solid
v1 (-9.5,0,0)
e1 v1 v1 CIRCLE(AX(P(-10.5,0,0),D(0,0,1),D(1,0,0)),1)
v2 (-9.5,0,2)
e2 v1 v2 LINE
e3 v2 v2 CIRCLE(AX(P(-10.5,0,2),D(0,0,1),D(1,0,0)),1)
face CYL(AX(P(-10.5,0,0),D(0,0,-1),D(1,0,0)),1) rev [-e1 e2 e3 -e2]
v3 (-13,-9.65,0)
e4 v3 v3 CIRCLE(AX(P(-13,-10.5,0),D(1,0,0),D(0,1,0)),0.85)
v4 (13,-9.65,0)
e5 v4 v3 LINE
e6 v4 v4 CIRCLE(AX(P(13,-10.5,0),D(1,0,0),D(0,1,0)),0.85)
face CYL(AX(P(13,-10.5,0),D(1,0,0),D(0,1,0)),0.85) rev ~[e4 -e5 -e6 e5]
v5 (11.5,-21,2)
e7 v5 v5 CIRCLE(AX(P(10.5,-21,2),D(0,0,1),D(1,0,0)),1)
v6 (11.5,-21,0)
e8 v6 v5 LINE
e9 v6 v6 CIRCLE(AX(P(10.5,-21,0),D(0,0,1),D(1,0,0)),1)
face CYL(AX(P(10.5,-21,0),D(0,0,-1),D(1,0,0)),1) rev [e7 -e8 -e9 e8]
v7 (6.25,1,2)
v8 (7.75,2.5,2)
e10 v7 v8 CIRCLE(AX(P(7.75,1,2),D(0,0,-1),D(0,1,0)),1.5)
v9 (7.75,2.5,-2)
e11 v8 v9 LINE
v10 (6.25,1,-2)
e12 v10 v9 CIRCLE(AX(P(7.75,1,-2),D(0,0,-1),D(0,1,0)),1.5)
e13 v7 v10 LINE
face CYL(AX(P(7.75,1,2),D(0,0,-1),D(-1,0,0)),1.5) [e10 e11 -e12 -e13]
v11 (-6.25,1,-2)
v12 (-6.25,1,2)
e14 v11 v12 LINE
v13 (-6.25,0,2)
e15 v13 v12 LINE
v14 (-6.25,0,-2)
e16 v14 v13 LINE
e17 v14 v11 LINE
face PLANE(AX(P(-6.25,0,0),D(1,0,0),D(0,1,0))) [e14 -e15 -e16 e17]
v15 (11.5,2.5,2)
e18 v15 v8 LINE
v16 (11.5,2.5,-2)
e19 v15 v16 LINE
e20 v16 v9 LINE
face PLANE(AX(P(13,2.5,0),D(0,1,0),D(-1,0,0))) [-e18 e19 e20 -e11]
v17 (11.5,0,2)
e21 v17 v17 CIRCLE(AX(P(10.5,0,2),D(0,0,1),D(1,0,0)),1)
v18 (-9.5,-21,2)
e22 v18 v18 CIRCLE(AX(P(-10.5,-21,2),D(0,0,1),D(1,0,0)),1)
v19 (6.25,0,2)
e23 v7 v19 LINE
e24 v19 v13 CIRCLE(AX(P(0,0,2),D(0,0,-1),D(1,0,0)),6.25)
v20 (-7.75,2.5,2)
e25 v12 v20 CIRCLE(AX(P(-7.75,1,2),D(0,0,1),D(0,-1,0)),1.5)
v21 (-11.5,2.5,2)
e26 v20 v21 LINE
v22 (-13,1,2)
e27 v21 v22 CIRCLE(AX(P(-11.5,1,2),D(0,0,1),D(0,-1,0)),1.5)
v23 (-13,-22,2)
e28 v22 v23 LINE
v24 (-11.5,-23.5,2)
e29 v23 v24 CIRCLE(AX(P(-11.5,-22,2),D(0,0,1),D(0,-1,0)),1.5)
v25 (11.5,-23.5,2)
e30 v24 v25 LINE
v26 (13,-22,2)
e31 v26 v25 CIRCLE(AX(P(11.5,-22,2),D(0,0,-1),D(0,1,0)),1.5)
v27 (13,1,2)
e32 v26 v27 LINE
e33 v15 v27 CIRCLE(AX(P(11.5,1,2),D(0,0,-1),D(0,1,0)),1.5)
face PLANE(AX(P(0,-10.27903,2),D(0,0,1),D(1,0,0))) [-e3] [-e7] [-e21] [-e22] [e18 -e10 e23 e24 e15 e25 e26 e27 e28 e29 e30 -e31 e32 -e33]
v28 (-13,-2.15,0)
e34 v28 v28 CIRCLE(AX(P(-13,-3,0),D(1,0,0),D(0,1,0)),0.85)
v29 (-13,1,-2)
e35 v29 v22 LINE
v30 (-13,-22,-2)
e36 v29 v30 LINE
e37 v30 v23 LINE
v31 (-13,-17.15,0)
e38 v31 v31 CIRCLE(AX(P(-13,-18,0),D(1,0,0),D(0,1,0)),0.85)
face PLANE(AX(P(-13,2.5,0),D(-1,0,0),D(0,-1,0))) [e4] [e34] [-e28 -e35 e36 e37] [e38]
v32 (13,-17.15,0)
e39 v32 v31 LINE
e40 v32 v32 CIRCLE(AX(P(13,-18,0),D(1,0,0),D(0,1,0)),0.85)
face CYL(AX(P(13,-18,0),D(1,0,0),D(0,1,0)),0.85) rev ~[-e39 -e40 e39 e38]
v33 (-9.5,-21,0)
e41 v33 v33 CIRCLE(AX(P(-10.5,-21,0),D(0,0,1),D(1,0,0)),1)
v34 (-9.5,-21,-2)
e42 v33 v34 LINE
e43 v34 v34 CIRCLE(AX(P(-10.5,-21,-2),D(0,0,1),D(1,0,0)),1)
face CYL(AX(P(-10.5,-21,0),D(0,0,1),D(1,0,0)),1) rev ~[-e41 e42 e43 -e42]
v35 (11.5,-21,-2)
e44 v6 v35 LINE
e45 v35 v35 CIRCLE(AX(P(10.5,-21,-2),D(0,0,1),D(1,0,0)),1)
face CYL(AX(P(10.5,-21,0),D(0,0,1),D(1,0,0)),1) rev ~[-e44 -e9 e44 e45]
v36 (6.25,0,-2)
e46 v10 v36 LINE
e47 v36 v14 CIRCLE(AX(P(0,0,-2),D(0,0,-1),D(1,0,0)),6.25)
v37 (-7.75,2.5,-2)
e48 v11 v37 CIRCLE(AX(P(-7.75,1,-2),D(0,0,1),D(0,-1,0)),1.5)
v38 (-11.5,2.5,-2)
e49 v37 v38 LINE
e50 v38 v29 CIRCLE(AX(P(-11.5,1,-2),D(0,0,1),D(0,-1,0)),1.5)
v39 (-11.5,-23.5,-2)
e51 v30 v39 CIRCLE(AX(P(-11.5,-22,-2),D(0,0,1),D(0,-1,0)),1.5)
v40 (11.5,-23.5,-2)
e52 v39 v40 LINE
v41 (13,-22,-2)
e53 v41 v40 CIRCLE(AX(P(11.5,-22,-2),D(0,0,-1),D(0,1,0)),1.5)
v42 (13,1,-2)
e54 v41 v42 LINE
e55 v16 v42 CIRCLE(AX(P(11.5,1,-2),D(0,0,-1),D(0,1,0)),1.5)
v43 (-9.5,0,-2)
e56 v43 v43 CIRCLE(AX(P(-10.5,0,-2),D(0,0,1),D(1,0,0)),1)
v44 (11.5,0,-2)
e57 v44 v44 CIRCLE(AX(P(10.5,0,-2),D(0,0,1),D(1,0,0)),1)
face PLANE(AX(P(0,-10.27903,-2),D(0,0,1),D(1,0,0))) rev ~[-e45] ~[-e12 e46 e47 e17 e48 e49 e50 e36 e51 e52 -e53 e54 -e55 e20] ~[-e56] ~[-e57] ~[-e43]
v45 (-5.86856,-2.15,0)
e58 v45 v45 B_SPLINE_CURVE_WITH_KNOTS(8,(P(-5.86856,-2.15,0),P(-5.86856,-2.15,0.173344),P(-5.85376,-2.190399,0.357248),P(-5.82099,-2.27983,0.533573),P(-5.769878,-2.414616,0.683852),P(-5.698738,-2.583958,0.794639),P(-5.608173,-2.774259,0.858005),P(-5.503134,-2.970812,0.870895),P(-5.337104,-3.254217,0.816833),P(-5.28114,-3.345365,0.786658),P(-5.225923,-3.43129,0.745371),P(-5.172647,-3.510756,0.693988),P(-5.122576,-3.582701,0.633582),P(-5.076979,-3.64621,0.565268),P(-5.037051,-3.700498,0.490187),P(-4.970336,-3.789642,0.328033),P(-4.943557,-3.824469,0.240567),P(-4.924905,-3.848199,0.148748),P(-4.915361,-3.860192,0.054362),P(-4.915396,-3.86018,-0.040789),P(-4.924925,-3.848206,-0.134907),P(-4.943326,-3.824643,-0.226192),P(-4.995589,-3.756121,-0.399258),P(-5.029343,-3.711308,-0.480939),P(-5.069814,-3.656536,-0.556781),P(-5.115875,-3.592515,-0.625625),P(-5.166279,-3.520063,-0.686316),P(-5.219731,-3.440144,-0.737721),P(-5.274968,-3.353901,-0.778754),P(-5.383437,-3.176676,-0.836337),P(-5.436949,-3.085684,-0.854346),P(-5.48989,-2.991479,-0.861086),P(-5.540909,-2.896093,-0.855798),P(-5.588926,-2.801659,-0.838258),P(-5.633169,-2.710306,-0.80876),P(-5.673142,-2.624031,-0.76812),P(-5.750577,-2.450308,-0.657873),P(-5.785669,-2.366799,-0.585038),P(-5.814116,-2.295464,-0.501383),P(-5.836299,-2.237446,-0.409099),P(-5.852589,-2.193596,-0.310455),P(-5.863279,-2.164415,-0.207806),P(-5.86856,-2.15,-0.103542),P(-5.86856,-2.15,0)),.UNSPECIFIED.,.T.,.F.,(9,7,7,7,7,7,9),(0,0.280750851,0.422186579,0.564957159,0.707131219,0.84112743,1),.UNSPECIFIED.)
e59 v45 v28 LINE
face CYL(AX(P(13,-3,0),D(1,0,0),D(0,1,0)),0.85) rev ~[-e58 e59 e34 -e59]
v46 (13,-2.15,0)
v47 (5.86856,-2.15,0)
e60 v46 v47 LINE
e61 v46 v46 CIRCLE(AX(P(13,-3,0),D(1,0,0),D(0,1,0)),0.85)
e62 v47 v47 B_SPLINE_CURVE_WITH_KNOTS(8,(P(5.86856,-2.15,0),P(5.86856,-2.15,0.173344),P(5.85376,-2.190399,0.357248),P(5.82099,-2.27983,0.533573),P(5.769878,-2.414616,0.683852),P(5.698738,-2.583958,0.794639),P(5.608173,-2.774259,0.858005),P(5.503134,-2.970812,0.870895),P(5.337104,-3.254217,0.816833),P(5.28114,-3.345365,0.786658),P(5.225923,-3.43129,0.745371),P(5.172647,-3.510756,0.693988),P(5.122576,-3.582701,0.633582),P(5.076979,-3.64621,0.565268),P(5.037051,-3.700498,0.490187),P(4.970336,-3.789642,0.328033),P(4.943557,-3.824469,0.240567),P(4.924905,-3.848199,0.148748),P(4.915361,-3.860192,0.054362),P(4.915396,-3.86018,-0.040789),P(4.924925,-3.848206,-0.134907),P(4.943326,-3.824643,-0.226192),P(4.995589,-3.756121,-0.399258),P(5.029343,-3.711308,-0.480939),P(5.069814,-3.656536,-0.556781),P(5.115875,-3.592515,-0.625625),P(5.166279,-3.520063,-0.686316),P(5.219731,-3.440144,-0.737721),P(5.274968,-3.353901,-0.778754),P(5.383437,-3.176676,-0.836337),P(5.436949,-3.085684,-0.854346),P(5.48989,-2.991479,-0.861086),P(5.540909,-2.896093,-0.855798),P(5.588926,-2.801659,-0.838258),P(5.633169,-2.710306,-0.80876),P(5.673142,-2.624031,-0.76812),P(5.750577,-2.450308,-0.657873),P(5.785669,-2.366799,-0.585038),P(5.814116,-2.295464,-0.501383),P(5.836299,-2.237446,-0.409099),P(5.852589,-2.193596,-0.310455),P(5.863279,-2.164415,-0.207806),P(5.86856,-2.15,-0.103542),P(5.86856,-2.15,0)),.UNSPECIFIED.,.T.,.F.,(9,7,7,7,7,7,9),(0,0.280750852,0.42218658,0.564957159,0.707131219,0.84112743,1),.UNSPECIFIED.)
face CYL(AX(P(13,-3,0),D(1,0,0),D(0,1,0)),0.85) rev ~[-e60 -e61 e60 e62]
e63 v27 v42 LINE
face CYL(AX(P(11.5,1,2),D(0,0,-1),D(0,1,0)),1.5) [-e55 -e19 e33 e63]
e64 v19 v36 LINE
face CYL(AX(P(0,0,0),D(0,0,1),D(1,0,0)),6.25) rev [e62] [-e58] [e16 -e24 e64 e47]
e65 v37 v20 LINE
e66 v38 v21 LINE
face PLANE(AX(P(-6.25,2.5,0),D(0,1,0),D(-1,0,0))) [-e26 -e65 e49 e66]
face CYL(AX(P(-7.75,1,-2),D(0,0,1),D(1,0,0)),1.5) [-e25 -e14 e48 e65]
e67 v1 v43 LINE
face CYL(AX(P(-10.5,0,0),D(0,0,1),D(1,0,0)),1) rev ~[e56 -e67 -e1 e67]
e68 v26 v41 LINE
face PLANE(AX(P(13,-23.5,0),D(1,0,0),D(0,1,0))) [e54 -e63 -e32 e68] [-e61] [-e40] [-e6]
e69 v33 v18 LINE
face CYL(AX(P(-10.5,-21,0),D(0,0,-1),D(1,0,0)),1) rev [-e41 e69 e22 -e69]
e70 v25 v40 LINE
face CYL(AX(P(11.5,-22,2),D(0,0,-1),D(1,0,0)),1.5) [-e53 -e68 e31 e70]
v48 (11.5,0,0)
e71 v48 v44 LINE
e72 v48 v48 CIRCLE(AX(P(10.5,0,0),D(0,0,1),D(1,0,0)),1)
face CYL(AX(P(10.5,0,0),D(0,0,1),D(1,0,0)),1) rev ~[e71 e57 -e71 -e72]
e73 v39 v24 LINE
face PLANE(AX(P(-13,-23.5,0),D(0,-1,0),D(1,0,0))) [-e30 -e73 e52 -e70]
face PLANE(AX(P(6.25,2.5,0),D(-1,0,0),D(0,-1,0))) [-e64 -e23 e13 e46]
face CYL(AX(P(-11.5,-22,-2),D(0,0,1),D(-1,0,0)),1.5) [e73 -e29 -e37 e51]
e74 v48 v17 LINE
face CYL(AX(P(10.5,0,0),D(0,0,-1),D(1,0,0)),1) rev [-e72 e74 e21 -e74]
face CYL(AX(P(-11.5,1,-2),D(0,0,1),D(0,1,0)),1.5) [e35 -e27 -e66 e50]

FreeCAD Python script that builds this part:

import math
import FreeCAD as App
import Part
import Sketcher
from FreeCAD import Vector


def edges_at(feature, points):
    """Names of the edges that pass closest to the given points."""
    edges = feature.Shape.Edges
    near = lambda p: min(range(len(edges)), key=lambda i: edges[i].distToShape(Part.Vertex(*p))[0])
    return sorted({f"Edge{near(p) + 1}" for p in points})

doc = App.newDocument("Part")
body = doc.addObject("PartDesign::Body", "Body")

sketch1 = body.newObject("Sketcher::SketchObject", "Sketch")
sketch1.AttachmentSupport = (doc.getObject("XY_Plane"), [""])
sketch1.MapMode = "FlatFace"
sketch1.addGeometry(Part.ArcOfCircle(Part.Circle(Vector(0, 0, 0), Vector(0, 0, 1), 6.2), math.radians(180), math.radians(360)), False)
sketch1.addGeometry(Part.LineSegment(Vector(-6.2, 0, 0), Vector(-6.2, 2.5, 0)), False)
sketch1.addGeometry(Part.LineSegment(Vector(-6.2, 2.5, 0), Vector(-13, 2.5, 0)), False)
sketch1.addGeometry(Part.LineSegment(Vector(-13, 2.5, 0), Vector(-13, -23.5, 0)), False)
sketch1.addGeometry(Part.LineSegment(Vector(-13, -23.5, 0), Vector(13, -23.5, 0)), False)
sketch1.addGeometry(Part.LineSegment(Vector(13, -23.5, 0), Vector(13, 2.5, 0)), False)
sketch1.addGeometry(Part.LineSegment(Vector(13, 2.5, 0), Vector(6.2, 2.5, 0)), False)
sketch1.addGeometry(Part.LineSegment(Vector(6.2, 2.5, 0), Vector(6.2, 0, 0)), False)
sketch1.addGeometry(Part.Circle(Vector(-10.5, -21, 0), Vector(0, 0, 1), 1), False)
sketch1.addGeometry(Part.Circle(Vector(10.5, -21, 0), Vector(0, 0, 1), 1), False)
sketch1.addGeometry(Part.Circle(Vector(-10.5, 0, 0), Vector(0, 0, 1), 1), False)
sketch1.addGeometry(Part.Circle(Vector(10.5, 0, 0), Vector(0, 0, 1), 1), False)
sketch1.addConstraint(Sketcher.Constraint("Tangent", 0, 1, 1, 1))
sketch1.addConstraint(Sketcher.Constraint("Coincident", 1, 2, 2, 1))
sketch1.addConstraint(Sketcher.Constraint("Coincident", 2, 2, 3, 1))
sketch1.addConstraint(Sketcher.Constraint("Coincident", 3, 2, 4, 1))
sketch1.addConstraint(Sketcher.Constraint("Coincident", 4, 2, 5, 1))
sketch1.addConstraint(Sketcher.Constraint("Coincident", 5, 2, 6, 1))
sketch1.addConstraint(Sketcher.Constraint("Coincident", 6, 2, 7, 1))
sketch1.addConstraint(Sketcher.Constraint("Tangent", 7, 2, 0, 2))
sketch1.addConstraint(Sketcher.Constraint("Vertical", 1))
sketch1.addConstraint(Sketcher.Constraint("Horizontal", 2))
sketch1.addConstraint(Sketcher.Constraint("Vertical", 3))
sketch1.addConstraint(Sketcher.Constraint("Horizontal", 4))
sketch1.addConstraint(Sketcher.Constraint("Vertical", 5))
sketch1.addConstraint(Sketcher.Constraint("Horizontal", 6))
sketch1.addConstraint(Sketcher.Constraint("Vertical", 7))
sketch1.addConstraint(Sketcher.Constraint("Coincident", 0, 3, -1, 1))
sketch1.addConstraint(Sketcher.Constraint("Equal", 8, 9))
sketch1.addConstraint(Sketcher.Constraint("Equal", 9, 10))
sketch1.addConstraint(Sketcher.Constraint("Equal", 10, 11))
sketch1.addConstraint(Sketcher.Constraint("Symmetric", 10, 3, 11, 3, -1, 1))
sketch1.addConstraint(Sketcher.Constraint("Symmetric", 8, 3, 9, 3, -2))
sketch1.addConstraint(Sketcher.Constraint("Symmetric", 2, 2, 5, 2, -2))
sketch1.addConstraint(Sketcher.Constraint("PointOnObject", 10, 3, -1))
sketch1.addConstraint(Sketcher.Constraint("Vertical", 8, 3, 10, 3))
sketch1.addConstraint(Sketcher.Constraint("Equal", 4, 3))
sketch1.addConstraint(Sketcher.Constraint("Diameter", 8, 2.0))
sketch1.addConstraint(Sketcher.Constraint("DistanceX", 4, 1, 4, 2, 26.0))
sketch1.addConstraint(Sketcher.Constraint("Radius", 0, 6.25))
sketch1.addConstraint(Sketcher.Constraint("DistanceY", 1, 1, 1, 2, 2.5))
sketch1.addConstraint(Sketcher.Constraint("DistanceY", 8, 3, -1, 1, 21.0))
sketch1.addConstraint(Sketcher.Constraint("DistanceX", 8, 3, 9, 3, 21.0))
pad1 = body.newObject("PartDesign::Pad", "Pad")
pad1.Profile = sketch1
pad1.Type = "TwoLengths"
pad1.Length = 2
pad1.Length2 = 2

sketch2 = body.newObject("Sketcher::SketchObject", "Sketch001")
sketch2.AttachmentSupport = (doc.getObject("YZ_Plane"), [""])
sketch2.MapMode = "FlatFace"
sketch2.AttachmentOffset = App.Placement(Vector(0, 0, 13), App.Rotation())
sketch2.addGeometry(Part.Circle(Vector(-10.5, 0, 0), Vector(0, 0, 1), 0.8), False)
sketch2.addGeometry(Part.Circle(Vector(-3, 0, 0), Vector(0, 0, 1), 0.8), False)
sketch2.addGeometry(Part.Circle(Vector(-18, 0, 0), Vector(0, 0, 1), 0.8), False)
sketch2.addConstraint(Sketcher.Constraint("Equal", 0, 1))
sketch2.addConstraint(Sketcher.Constraint("Equal", 1, 2))
sketch2.addConstraint(Sketcher.Constraint("PointOnObject", 0, 3, -1))
sketch2.addConstraint(Sketcher.Constraint("PointOnObject", 1, 3, -1))
sketch2.addConstraint(Sketcher.Constraint("PointOnObject", 2, 3, -1))
sketch2.addConstraint(Sketcher.Constraint("Diameter", 0, 1.7))
sketch2.addConstraint(Sketcher.Constraint("DistanceX", 1, 3, -1, 1, 3.0))
sketch2.addConstraint(Sketcher.Constraint("DistanceX", 2, 3, -1, 1, 18.0))
sketch2.addConstraint(Sketcher.Constraint("DistanceX", 0, 3, -1, 1, 10.5))
pocket1 = body.newObject("PartDesign::Pocket", "Pocket")
pocket1.Profile = sketch2
pocket1.Type = "ThroughAll"
doc.recompute()

fillet = body.newObject("PartDesign::Fillet", "Fillet")
fillet.Base = (pocket1, edges_at(pocket1, [
    (-13, 2.5, 0),
    (13, 2.5, 0),
    (6.25, 2.5, 0),
    (-6.25, 2.5, 0),
    (-13, -23.5, 0),
    (13, -23.5, 0),
]))
fillet.Radius = 1.5

doc.recompute()
